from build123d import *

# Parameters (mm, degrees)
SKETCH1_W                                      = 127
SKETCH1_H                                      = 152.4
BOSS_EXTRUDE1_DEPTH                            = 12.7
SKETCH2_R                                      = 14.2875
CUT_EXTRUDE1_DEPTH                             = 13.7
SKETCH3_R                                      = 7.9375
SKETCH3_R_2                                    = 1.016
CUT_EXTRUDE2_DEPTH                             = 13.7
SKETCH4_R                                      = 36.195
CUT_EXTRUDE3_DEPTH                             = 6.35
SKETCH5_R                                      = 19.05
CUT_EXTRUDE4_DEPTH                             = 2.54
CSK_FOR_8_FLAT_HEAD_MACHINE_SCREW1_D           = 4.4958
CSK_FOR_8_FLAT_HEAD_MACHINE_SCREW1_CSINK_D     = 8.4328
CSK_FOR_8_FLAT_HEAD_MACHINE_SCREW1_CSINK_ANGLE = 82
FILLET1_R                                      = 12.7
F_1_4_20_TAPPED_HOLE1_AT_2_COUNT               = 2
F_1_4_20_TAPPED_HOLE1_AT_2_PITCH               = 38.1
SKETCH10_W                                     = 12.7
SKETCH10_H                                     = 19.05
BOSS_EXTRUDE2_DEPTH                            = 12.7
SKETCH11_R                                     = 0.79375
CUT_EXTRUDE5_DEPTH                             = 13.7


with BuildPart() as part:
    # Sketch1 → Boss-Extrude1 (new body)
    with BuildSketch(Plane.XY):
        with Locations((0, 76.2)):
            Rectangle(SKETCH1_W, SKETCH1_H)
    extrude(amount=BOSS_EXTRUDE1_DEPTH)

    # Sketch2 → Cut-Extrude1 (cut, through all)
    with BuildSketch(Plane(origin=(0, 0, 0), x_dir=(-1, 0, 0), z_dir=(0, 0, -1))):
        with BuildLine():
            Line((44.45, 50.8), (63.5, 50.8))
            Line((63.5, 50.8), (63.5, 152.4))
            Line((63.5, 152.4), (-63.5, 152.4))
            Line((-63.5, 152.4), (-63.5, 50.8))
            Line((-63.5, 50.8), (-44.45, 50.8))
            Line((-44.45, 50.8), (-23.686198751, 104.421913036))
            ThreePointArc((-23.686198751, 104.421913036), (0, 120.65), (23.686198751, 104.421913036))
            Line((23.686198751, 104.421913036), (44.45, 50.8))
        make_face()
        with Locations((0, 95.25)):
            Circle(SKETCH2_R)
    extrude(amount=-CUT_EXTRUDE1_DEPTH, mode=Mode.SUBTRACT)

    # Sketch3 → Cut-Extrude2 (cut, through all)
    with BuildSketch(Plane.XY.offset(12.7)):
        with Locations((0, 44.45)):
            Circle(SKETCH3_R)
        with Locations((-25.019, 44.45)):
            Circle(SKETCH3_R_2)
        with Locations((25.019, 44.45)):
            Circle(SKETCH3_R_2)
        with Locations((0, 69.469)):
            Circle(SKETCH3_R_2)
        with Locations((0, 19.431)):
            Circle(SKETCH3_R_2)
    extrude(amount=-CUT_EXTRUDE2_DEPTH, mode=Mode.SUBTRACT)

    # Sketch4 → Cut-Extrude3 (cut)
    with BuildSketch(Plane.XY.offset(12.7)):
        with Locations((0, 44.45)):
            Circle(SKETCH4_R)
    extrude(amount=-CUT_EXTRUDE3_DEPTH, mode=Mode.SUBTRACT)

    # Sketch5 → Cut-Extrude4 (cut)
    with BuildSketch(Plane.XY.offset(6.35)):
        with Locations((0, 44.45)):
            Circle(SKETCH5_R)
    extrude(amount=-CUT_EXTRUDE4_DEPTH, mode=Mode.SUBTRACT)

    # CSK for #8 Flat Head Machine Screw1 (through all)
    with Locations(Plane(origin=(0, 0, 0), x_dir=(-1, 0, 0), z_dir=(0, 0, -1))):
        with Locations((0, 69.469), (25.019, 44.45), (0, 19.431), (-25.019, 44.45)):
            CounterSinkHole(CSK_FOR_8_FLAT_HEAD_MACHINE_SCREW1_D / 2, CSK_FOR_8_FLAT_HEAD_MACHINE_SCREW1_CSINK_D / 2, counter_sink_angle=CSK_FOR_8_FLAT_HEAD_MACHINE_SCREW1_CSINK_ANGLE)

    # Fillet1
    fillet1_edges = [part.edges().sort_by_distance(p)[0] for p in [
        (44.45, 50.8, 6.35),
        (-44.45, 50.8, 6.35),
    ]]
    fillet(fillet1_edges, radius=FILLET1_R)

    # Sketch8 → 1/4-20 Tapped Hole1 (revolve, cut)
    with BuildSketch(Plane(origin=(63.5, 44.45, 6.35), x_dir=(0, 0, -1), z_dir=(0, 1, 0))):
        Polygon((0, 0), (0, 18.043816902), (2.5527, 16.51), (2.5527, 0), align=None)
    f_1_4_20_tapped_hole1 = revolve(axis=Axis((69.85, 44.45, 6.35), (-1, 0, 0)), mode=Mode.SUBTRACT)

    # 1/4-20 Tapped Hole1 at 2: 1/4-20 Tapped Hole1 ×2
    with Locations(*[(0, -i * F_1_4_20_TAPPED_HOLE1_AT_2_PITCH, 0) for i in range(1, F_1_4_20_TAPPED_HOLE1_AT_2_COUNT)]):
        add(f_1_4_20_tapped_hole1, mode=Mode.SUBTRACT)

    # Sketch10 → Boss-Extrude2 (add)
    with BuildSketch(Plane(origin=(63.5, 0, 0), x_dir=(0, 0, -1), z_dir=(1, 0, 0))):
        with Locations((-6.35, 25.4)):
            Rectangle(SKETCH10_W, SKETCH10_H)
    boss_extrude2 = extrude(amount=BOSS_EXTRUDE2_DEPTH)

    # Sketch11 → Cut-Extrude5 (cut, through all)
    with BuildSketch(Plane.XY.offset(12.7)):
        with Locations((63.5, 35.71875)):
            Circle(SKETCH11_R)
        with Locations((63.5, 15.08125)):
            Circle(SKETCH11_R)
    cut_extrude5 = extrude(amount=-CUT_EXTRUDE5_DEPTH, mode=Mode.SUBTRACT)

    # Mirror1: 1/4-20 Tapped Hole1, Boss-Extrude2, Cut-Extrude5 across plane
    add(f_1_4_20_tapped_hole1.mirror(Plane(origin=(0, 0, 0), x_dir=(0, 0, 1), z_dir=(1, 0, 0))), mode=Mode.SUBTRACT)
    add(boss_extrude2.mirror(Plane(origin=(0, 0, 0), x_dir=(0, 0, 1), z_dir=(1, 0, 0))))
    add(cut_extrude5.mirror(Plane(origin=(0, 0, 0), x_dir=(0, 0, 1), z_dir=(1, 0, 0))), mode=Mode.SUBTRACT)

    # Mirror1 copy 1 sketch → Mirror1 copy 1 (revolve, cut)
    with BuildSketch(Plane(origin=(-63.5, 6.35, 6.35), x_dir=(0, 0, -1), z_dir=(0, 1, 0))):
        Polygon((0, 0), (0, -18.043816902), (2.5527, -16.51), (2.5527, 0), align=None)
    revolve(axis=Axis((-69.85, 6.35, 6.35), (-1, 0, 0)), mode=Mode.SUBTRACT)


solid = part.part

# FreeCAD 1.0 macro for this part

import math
import FreeCAD as App
import Part
import Sketcher

V = App.Vector
Q = App.Units.Quantity


def edges_at(feature, points):
    """Names of the edges that pass closest to the given points."""
    edges = feature.Shape.Edges
    near = lambda p: min(range(len(edges)), key=lambda i: edges[i].distToShape(Part.Vertex(*p))[0])
    return sorted({f"Edge{near(p) + 1}" for p in points})

doc = App.newDocument("Part")
params = doc.addObject("Spreadsheet::Sheet", "Params")
for row, (alias, value) in enumerate([
    ("sketch1_width", "5 in"),
    ("sketch1_height", "6 in"),
    ("pad1_length", "0.5 in"),
    ("sketch2_radius", "1 in"),
    ("sketch2_width", "5 in"),
    ("sketch2_height", "4 in"),
    ("sketch2_diameter", "1.125 in"),
    ("sketch2_width2", "0.75 in"),
    ("sketch3_diameter", "0.08 in"),
    ("sketch3_diameter2", "0.625 in"),
    ("sketch4_diameter", "2.85 in"),
    ("pocket3_length", "0.25 in"),
    ("sketch5_diameter", "1.5 in"),
    ("pocket4_length", "0.1 in"),
    ("sketch6_diameter", "0.177 in"),
    ("hole_diameter", "0.177 in"),
    ("hole_csink_diameter", "0.332 in"),
    ("fillet_radius", "0.5 in"),
    ("sketch7_width", "0.65 in"),
    ("groove_angle", "360 deg"),
    ("linearpattern_pitch", "1.5 in"),
    ("sketch8_height", "0.5 in"),
    ("sketch8_width", "0.75 in"),
    ("pad2_length", "0.5 in"),
    ("sketch9_diameter", "0.0625 in"),
    ("sketch10_width", "0.65 in"),
    ("groove2_angle", "360 deg"),
], start=1):
    params.set(f"A{row}", alias)
    params.set(f"B{row}", "=" + value)
    params.setAlias(f"B{row}", alias)

body = doc.addObject("PartDesign::Body", "Body")

sketch1 = doc.addObject("Sketcher::SketchObject", "Sketch")
body.addObject(sketch1)
sketch1.AttachmentSupport = (doc.XY_Plane, [""])
sketch1.MapMode = "FlatFace"
sketch1.addGeometry(Part.LineSegment(V(-64, 152, 0), V(-64, 0, 0)), False)
sketch1.addGeometry(Part.LineSegment(V(-64, 0, 0), V(64, 0, 0)), False)
sketch1.addGeometry(Part.LineSegment(V(64, 0, 0), V(64, 152, 0)), False)
sketch1.addGeometry(Part.LineSegment(V(64, 152, 0), V(-64, 152, 0)), False)
sketch1.addConstraint(Sketcher.Constraint("Coincident", 0, 2, 1, 1))
sketch1.addConstraint(Sketcher.Constraint("Coincident", 1, 2, 2, 1))
sketch1.addConstraint(Sketcher.Constraint("Coincident", 2, 2, 3, 1))
sketch1.addConstraint(Sketcher.Constraint("Coincident", 3, 2, 0, 1))
sketch1.addConstraint(Sketcher.Constraint("Vertical", 0))
sketch1.addConstraint(Sketcher.Constraint("Horizontal", 1))
sketch1.addConstraint(Sketcher.Constraint("Vertical", 2))
sketch1.addConstraint(Sketcher.Constraint("Horizontal", 3))
sketch1.addConstraint(Sketcher.Constraint("Symmetric", 0, 2, 1, 2, -1, 1))
sketch1.addConstraint(Sketcher.Constraint("DistanceX", 1, 1, 1, 2, Q("5 in")))
sketch1.addConstraint(Sketcher.Constraint("DistanceY", 0, 2, 0, 1, Q("6 in")))
sketch1.setExpression("Constraints[9]", "Params.sketch1_width")
sketch1.setExpression("Constraints[10]", "Params.sketch1_height")
pad1 = doc.addObject("PartDesign::Pad", "Pad")
body.addObject(pad1)
pad1.Profile = sketch1
pad1.setExpression("Length", "Params.pad1_length")

sketch2 = doc.addObject("Sketcher::SketchObject", "Sketch001")
body.addObject(sketch2)
sketch2.AttachmentSupport = (doc.XY_Plane, [""])
sketch2.MapMode = "FlatFace"
sketch2.addGeometry(Part.LineSegment(V(-44, 51, 0), V(-64, 51, 0)), False)
sketch2.addGeometry(Part.LineSegment(V(-64, 51, 0), V(-64, 152, 0)), False)
sketch2.addGeometry(Part.LineSegment(V(-64, 152, 0), V(64, 152, 0)), False)
sketch2.addGeometry(Part.LineSegment(V(64, 152, 0), V(64, 51, 0)), False)
sketch2.addGeometry(Part.LineSegment(V(64, 51, 0), V(44, 51, 0)), False)
sketch2.addGeometry(Part.LineSegment(V(44, 51, 0), V(24, 104, 0)), False)
sketch2.addGeometry(Part.ArcOfCircle(Part.Circle(V(0, 95, 0), V(0, 0, 1), 25), math.radians(21), math.radians(159)), False)
sketch2.addGeometry(Part.LineSegment(V(-24, 104, 0), V(-44, 51, 0)), False)
sketch2.addGeometry(Part.Circle(V(0, 95, 0), V(0, 0, 1), 14), False)
sketch2.addConstraint(Sketcher.Constraint("Coincident", 0, 2, 1, 1))
sketch2.addConstraint(Sketcher.Constraint("Coincident", 1, 2, 2, 1))
sketch2.addConstraint(Sketcher.Constraint("Coincident", 2, 2, 3, 1))
sketch2.addConstraint(Sketcher.Constraint("Coincident", 3, 2, 4, 1))
sketch2.addConstraint(Sketcher.Constraint("Coincident", 4, 2, 5, 1))
sketch2.addConstraint(Sketcher.Constraint("Tangent", 5, 2, 6, 1))
sketch2.addConstraint(Sketcher.Constraint("Tangent", 6, 2, 7, 1))
sketch2.addConstraint(Sketcher.Constraint("Coincident", 7, 2, 0, 1))
sketch2.addConstraint(Sketcher.Constraint("Horizontal", 0))
sketch2.addConstraint(Sketcher.Constraint("Vertical", 1))
sketch2.addConstraint(Sketcher.Constraint("Horizontal", 2))
sketch2.addConstraint(Sketcher.Constraint("Vertical", 3))
sketch2.addConstraint(Sketcher.Constraint("Horizontal", 4))
sketch2.addConstraint(Sketcher.Constraint("Coincident", 8, 3, 6, 3))
sketch2.addConstraint(Sketcher.Constraint("Symmetric", 0, 2, 3, 2, -2))
sketch2.addConstraint(Sketcher.Constraint("Symmetric", 5, 2, 6, 2, -2))
sketch2.addConstraint(Sketcher.Constraint("Radius", 6, Q("1 in")))
sketch2.addConstraint(Sketcher.Constraint("DistanceX", 2, 1, 2, 2, Q("5 in")))
sketch2.addConstraint(Sketcher.Constraint("DistanceY", 1, 1, 1, 2, Q("4 in")))
sketch2.addConstraint(Sketcher.Constraint("Diameter", 8, Q("1.125 in")))
sketch2.addConstraint(Sketcher.Constraint("DistanceY", -1, 1, 0, 2, Q("2 in")))
sketch2.addConstraint(Sketcher.Constraint("DistanceX", 0, 2, 0, 1, Q("0.75 in")))
sketch2.addConstraint(Sketcher.Constraint("DistanceY", -1, 1, 6, 3, Q("3.75 in")))
sketch2.setExpression("Constraints[16]", "Params.sketch2_radius")
sketch2.setExpression("Constraints[17]", "Params.sketch2_width")
sketch2.setExpression("Constraints[18]", "Params.sketch2_height")
sketch2.setExpression("Constraints[19]", "Params.sketch2_diameter")
sketch2.setExpression("Constraints[21]", "Params.sketch2_width2")
pocket1 = doc.addObject("PartDesign::Pocket", "Pocket")
body.addObject(pocket1)
pocket1.Profile = sketch2
pocket1.Type = "ThroughAll"
pocket1.Reversed = True

sketch3 = doc.addObject("Sketcher::SketchObject", "Sketch002")
body.addObject(sketch3)
sketch3.AttachmentSupport = (doc.XY_Plane, [""])
sketch3.MapMode = "FlatFace"
sketch3.AttachmentOffset = App.Placement(V(0, 0, 0.5 * 25.4), App.Rotation())
sketch3.addGeometry(Part.Circle(V(0, 44.5, 0), V(0, 0, 1), 7.9), False)
sketch3.addGeometry(Part.Circle(V(-25, 44.5, 0), V(0, 0, 1), 1), False)
sketch3.addGeometry(Part.Circle(V(25, 44.5, 0), V(0, 0, 1), 1), False)
sketch3.addGeometry(Part.Circle(V(0, 69.5, 0), V(0, 0, 1), 1), False)
sketch3.addGeometry(Part.Circle(V(0, 19.4, 0), V(0, 0, 1), 1), False)
sketch3.addConstraint(Sketcher.Constraint("Equal", 1, 2))
sketch3.addConstraint(Sketcher.Constraint("Equal", 2, 3))
sketch3.addConstraint(Sketcher.Constraint("Equal", 3, 4))
sketch3.addConstraint(Sketcher.Constraint("Symmetric", 1, 3, 2, 3, -2))
sketch3.addConstraint(Sketcher.Constraint("PointOnObject", 0, 3, -2))
sketch3.addConstraint(Sketcher.Constraint("PointOnObject", 3, 3, -2))
sketch3.addConstraint(Sketcher.Constraint("PointOnObject", 4, 3, -2))
sketch3.addConstraint(Sketcher.Constraint("Horizontal", 0, 3, 1, 3))
sketch3.addConstraint(Sketcher.Constraint("Diameter", 1, Q("0.08 in")))
sketch3.addConstraint(Sketcher.Constraint("Diameter", 0, Q("0.625 in")))
sketch3.addConstraint(Sketcher.Constraint("DistanceY", -1, 1, 0, 3, Q("1.75 in")))
sketch3.addConstraint(Sketcher.Constraint("DistanceX", 1, 3, 2, 3, Q("1.97 in")))
sketch3.addConstraint(Sketcher.Constraint("DistanceY", 4, 3, 3, 3, Q("1.97 in")))
sketch3.addConstraint(Sketcher.Constraint("DistanceY", -1, 1, 3, 3, Q("2.735 in")))
sketch3.setExpression("Constraints[8]", "Params.sketch3_diameter")
sketch3.setExpression("Constraints[9]", "Params.sketch3_diameter2")
pocket2 = doc.addObject("PartDesign::Pocket", "Pocket001")
body.addObject(pocket2)
pocket2.Profile = sketch3
pocket2.Type = "ThroughAll"

sketch4 = doc.addObject("Sketcher::SketchObject", "Sketch003")
body.addObject(sketch4)
sketch4.AttachmentSupport = (doc.XY_Plane, [""])
sketch4.MapMode = "FlatFace"
sketch4.AttachmentOffset = App.Placement(V(0, 0, 0.5 * 25.4), App.Rotation())
sketch4.addGeometry(Part.Circle(V(0, 44, 0), V(0, 0, 1), 36), False)
sketch4.addConstraint(Sketcher.Constraint("PointOnObject", 0, 3, -2))
sketch4.addConstraint(Sketcher.Constraint("Diameter", 0, Q("2.85 in")))
sketch4.addConstraint(Sketcher.Constraint("DistanceY", -1, 1, 0, 3, Q("1.75 in")))
sketch4.setExpression("Constraints[1]", "Params.sketch4_diameter")
pocket3 = doc.addObject("PartDesign::Pocket", "Pocket002")
body.addObject(pocket3)
pocket3.Profile = sketch4
pocket3.setExpression("Length", "Params.pocket3_length")

sketch5 = doc.addObject("Sketcher::SketchObject", "Sketch004")
body.addObject(sketch5)
sketch5.AttachmentSupport = (doc.XY_Plane, [""])
sketch5.MapMode = "FlatFace"
sketch5.AttachmentOffset = App.Placement(V(0, 0, 0.25 * 25.4), App.Rotation())
sketch5.addGeometry(Part.Circle(V(0, 44, 0), V(0, 0, 1), 19), False)
sketch5.addConstraint(Sketcher.Constraint("PointOnObject", 0, 3, -2))
sketch5.addConstraint(Sketcher.Constraint("Diameter", 0, Q("1.5 in")))
sketch5.addConstraint(Sketcher.Constraint("DistanceY", -1, 1, 0, 3, Q("1.75 in")))
sketch5.setExpression("Constraints[1]", "Params.sketch5_diameter")
pocket4 = doc.addObject("PartDesign::Pocket", "Pocket003")
body.addObject(pocket4)
pocket4.Profile = sketch5
pocket4.setExpression("Length", "Params.pocket4_length")

sketch6 = doc.addObject("Sketcher::SketchObject", "Sketch005")
body.addObject(sketch6)
sketch6.AttachmentSupport = (doc.XY_Plane, [""])
sketch6.MapMode = "FlatFace"
sketch6.addGeometry(Part.Circle(V(0, 69.5, 0), V(0, 0, 1), 2.2), False)
sketch6.addGeometry(Part.Circle(V(-25, 44.5, 0), V(0, 0, 1), 2.2), False)
sketch6.addGeometry(Part.Circle(V(0, 19.4, 0), V(0, 0, 1), 2.2), False)
sketch6.addGeometry(Part.Circle(V(25, 44.5, 0), V(0, 0, 1), 2.2), False)
sketch6.addConstraint(Sketcher.Constraint("Equal", 0, 1))
sketch6.addConstraint(Sketcher.Constraint("Equal", 1, 2))
sketch6.addConstraint(Sketcher.Constraint("Equal", 2, 3))
sketch6.addConstraint(Sketcher.Constraint("Symmetric", 1, 3, 3, 3, -2))
sketch6.addConstraint(Sketcher.Constraint("PointOnObject", 0, 3, -2))
sketch6.addConstraint(Sketcher.Constraint("PointOnObject", 2, 3, -2))
sketch6.addConstraint(Sketcher.Constraint("Diameter", 0, Q("0.177 in")))
sketch6.addConstraint(Sketcher.Constraint("DistanceY", -1, 1, 1, 3, Q("1.75 in")))
sketch6.addConstraint(Sketcher.Constraint("DistanceY", 2, 3, 0, 3, Q("1.97 in")))
sketch6.addConstraint(Sketcher.Constraint("DistanceX", 1, 3, 3, 3, Q("1.97 in")))
sketch6.addConstraint(Sketcher.Constraint("DistanceY", -1, 1, 0, 3, Q("2.735 in")))
sketch6.setExpression("Constraints[6]", "Params.sketch6_diameter")
doc.recompute()
hole = doc.addObject("PartDesign::Hole", "Hole")
body.addObject(hole)
hole.Profile = sketch6
hole.ThreadType = "None"
hole.setExpression("Diameter", "Params.hole_diameter")
hole.DepthType = "ThroughAll"
hole.HoleCutType = "Countersink"
hole.setExpression("HoleCutDiameter", "Params.hole_csink_diameter")
hole.HoleCutCountersinkAngle = 82
hole.Reversed = True
doc.recompute()

fillet = doc.addObject("PartDesign::Fillet", "Fillet")
body.addObject(fillet)
fillet.Base = (hole, edges_at(hole, [(44.45, 50.8, 6.35), (-44.45, 50.8, 6.35)]))
fillet.setExpression("Radius", "Params.fillet_radius")

sketch7 = doc.addObject("Sketcher::SketchObject", "Sketch006")
body.addObject(sketch7)
sketch7.AttachmentSupport = (doc.XZ_Plane, [""])
sketch7.MapMode = "FlatFace"
sketch7.AttachmentOffset = App.Placement(V(0, 0, -1.75 * 25.4), App.Rotation())
sketch7.addGeometry(Part.LineSegment(V(45.5, 6.3, 0), V(63.5, 6.3, 0)), False)
sketch7.addGeometry(Part.LineSegment(V(63.5, 6.3, 0), V(63.5, 3.8, 0)), False)
sketch7.addGeometry(Part.LineSegment(V(63.5, 3.8, 0), V(47, 3.8, 0)), False)
sketch7.addGeometry(Part.LineSegment(V(47, 3.8, 0), V(45.5, 6.3, 0)), False)
sketch7.addGeometry(Part.LineSegment(V(63.5, 6.3, 0), V(45.5, 6.3, 0)), True)
sketch7.addConstraint(Sketcher.Constraint("Coincident", 0, 2, 1, 1))
sketch7.addConstraint(Sketcher.Constraint("Coincident", 1, 2, 2, 1))
sketch7.addConstraint(Sketcher.Constraint("Coincident", 2, 2, 3, 1))
sketch7.addConstraint(Sketcher.Constraint("Coincident", 3, 2, 0, 1))
sketch7.addConstraint(Sketcher.Constraint("Horizontal", 0))
sketch7.addConstraint(Sketcher.Constraint("Vertical", 1))
sketch7.addConstraint(Sketcher.Constraint("Horizontal", 2))
sketch7.addConstraint(Sketcher.Constraint("Horizontal", 4))
sketch7.addConstraint(Sketcher.Constraint("Coincident", 4, 1, 0, 2))
sketch7.addConstraint(Sketcher.Constraint("Equal", 0, 4))
sketch7.addConstraint(Sketcher.Constraint("Angle", 3, Q("121 deg")))
sketch7.addConstraint(Sketcher.Constraint("DistanceX", 2, 2, 2, 1, Q("0.65 in")))
sketch7.addConstraint(Sketcher.Constraint("DistanceX", -1, 1, 0, 2, Q("2.5 in")))
sketch7.addConstraint(Sketcher.Constraint("DistanceY", -1, 1, 0, 2, Q("0.25 in")))
sketch7.addConstraint(Sketcher.Constraint("DistanceY", 1, 2, 1, 1, Q("0.1005 in")))
sketch7.setExpression("Constraints[11]", "Params.sketch7_width")
groove = doc.addObject("PartDesign::Groove", "Groove")
body.addObject(groove)
groove.Profile = sketch7
groove.ReferenceAxis = (sketch7, ["Axis0"])
groove.setExpression("Angle", "Params.groove_angle")
doc.recompute()

linearpattern = doc.addObject("PartDesign::LinearPattern", "LinearPattern")
body.addObject(linearpattern)
linearpattern.Originals = [groove]
linearpattern.Direction = (doc.Y_Axis, [""])
linearpattern.Mode = "offset"
linearpattern.setExpression("Offset", "Params.linearpattern_pitch")
linearpattern.Occurrences = 2
linearpattern.Reversed = True
body.Tip = linearpattern

sketch8 = doc.addObject("Sketcher::SketchObject", "Sketch007")
body.addObject(sketch8)
sketch8.AttachmentSupport = (doc.YZ_Plane, [""])
sketch8.MapMode = "FlatFace"
sketch8.AttachmentOffset = App.Placement(V(0, 0, 2.5 * 25.4), App.Rotation())
sketch8.addGeometry(Part.LineSegment(V(35, 13, 0), V(16, 13, 0)), False)
sketch8.addGeometry(Part.LineSegment(V(16, 13, 0), V(16, 0, 0)), False)
sketch8.addGeometry(Part.LineSegment(V(16, 0, 0), V(35, 0, 0)), False)
sketch8.addGeometry(Part.LineSegment(V(35, 0, 0), V(35, 13, 0)), False)
sketch8.addConstraint(Sketcher.Constraint("Coincident", 0, 2, 1, 1))
sketch8.addConstraint(Sketcher.Constraint("Coincident", 1, 2, 2, 1))
sketch8.addConstraint(Sketcher.Constraint("Coincident", 2, 2, 3, 1))
sketch8.addConstraint(Sketcher.Constraint("Coincident", 3, 2, 0, 1))
sketch8.addConstraint(Sketcher.Constraint("Horizontal", 0))
sketch8.addConstraint(Sketcher.Constraint("Vertical", 1))
sketch8.addConstraint(Sketcher.Constraint("Horizontal", 2))
sketch8.addConstraint(Sketcher.Constraint("Vertical", 3))
sketch8.addConstraint(Sketcher.Constraint("PointOnObject", 1, 2, -1))
sketch8.addConstraint(Sketcher.Constraint("DistanceY", 1, 2, 1, 1, Q("0.5 in")))
sketch8.addConstraint(Sketcher.Constraint("DistanceX", 0, 2, 0, 1, Q("0.75 in")))
sketch8.addConstraint(Sketcher.Constraint("DistanceX", -1, 1, 0, 2, Q("0.625 in")))
sketch8.setExpression("Constraints[9]", "Params.sketch8_height")
sketch8.setExpression("Constraints[10]", "Params.sketch8_width")
pad2 = doc.addObject("PartDesign::Pad", "Pad001")
body.addObject(pad2)
pad2.Profile = sketch8
pad2.setExpression("Length", "Params.pad2_length")

sketch9 = doc.addObject("Sketcher::SketchObject", "Sketch008")
body.addObject(sketch9)
sketch9.AttachmentSupport = (doc.XY_Plane, [""])
sketch9.MapMode = "FlatFace"
sketch9.AttachmentOffset = App.Placement(V(0, 0, 0.5 * 25.4), App.Rotation())
sketch9.addGeometry(Part.Circle(V(63.5, 35.7, 0), V(0, 0, 1), 0.8), False)
sketch9.addGeometry(Part.Circle(V(63.5, 15.1, 0), V(0, 0, 1), 0.8), False)
sketch9.addConstraint(Sketcher.Constraint("Equal", 0, 1))
sketch9.addConstraint(Sketcher.Constraint("Vertical", 0, 3, 1, 3))
sketch9.addConstraint(Sketcher.Constraint("Diameter", 0, Q("0.0625 in")))
sketch9.addConstraint(Sketcher.Constraint("DistanceX", -1, 1, 0, 3, Q("2.5 in")))
sketch9.addConstraint(Sketcher.Constraint("DistanceY", -1, 1, 0, 3, Q("1.40625 in")))
sketch9.addConstraint(Sketcher.Constraint("DistanceY", -1, 1, 1, 3, Q("0.59375 in")))
sketch9.setExpression("Constraints[2]", "Params.sketch9_diameter")
pocket5 = doc.addObject("PartDesign::Pocket", "Pocket004")
body.addObject(pocket5)
pocket5.Profile = sketch9
pocket5.Type = "ThroughAll"
doc.recompute()

mirrored = doc.addObject("PartDesign::Mirrored", "Mirrored")
body.addObject(mirrored)
mirrored.Originals = [groove, pad2, pocket5]
mirrored.MirrorPlane = (doc.YZ_Plane, [""])
body.Tip = mirrored

sketch10 = doc.addObject("Sketcher::SketchObject", "Sketch009")
body.addObject(sketch10)
sketch10.AttachmentSupport = (doc.XZ_Plane, [""])
sketch10.MapMode = "FlatFace"
sketch10.AttachmentOffset = App.Placement(V(0, 0, -0.25 * 25.4), App.Rotation())
sketch10.addGeometry(Part.LineSegment(V(-63.5, 6.3, 0), V(-45.5, 6.3, 0)), False)
sketch10.addGeometry(Part.LineSegment(V(-45.5, 6.3, 0), V(-47, 3.8, 0)), False)
sketch10.addGeometry(Part.LineSegment(V(-47, 3.8, 0), V(-63.5, 3.8, 0)), False)
sketch10.addGeometry(Part.LineSegment(V(-63.5, 3.8, 0), V(-63.5, 6.3, 0)), False)
sketch10.addGeometry(Part.LineSegment(V(-45.5, 6.3, 0), V(-63.5, 6.3, 0)), True)
sketch10.addConstraint(Sketcher.Constraint("Coincident", 0, 2, 1, 1))
sketch10.addConstraint(Sketcher.Constraint("Coincident", 1, 2, 2, 1))
sketch10.addConstraint(Sketcher.Constraint("Coincident", 2, 2, 3, 1))
sketch10.addConstraint(Sketcher.Constraint("Coincident", 3, 2, 0, 1))
sketch10.addConstraint(Sketcher.Constraint("Horizontal", 0))
sketch10.addConstraint(Sketcher.Constraint("Horizontal", 2))
sketch10.addConstraint(Sketcher.Constraint("Vertical", 3))
sketch10.addConstraint(Sketcher.Constraint("Horizontal", 4))
sketch10.addConstraint(Sketcher.Constraint("Coincident", 4, 1, 0, 2))
sketch10.addConstraint(Sketcher.Constraint("Vertical", 2, 2, 4, 2))
sketch10.addConstraint(Sketcher.Constraint("Angle", 1, Q("-121 deg")))
sketch10.addConstraint(Sketcher.Constraint("DistanceX", 2, 2, 2, 1, Q("0.65 in")))
sketch10.addConstraint(Sketcher.Constraint("DistanceX", 2, 2, -1, 1, Q("2.5 in")))
sketch10.addConstraint(Sketcher.Constraint("DistanceY", -1, 1, 0, 2, Q("0.25 in")))
sketch10.addConstraint(Sketcher.Constraint("DistanceY", 3, 1, 3, 2, Q("0.1005 in")))
sketch10.setExpression("Constraints[11]", "Params.sketch10_width")
groove2 = doc.addObject("PartDesign::Groove", "Groove001")
body.addObject(groove2)
groove2.Profile = sketch10
groove2.ReferenceAxis = (sketch10, ["Axis0"])
groove2.setExpression("Angle", "Params.groove2_angle")

doc.recompute()
